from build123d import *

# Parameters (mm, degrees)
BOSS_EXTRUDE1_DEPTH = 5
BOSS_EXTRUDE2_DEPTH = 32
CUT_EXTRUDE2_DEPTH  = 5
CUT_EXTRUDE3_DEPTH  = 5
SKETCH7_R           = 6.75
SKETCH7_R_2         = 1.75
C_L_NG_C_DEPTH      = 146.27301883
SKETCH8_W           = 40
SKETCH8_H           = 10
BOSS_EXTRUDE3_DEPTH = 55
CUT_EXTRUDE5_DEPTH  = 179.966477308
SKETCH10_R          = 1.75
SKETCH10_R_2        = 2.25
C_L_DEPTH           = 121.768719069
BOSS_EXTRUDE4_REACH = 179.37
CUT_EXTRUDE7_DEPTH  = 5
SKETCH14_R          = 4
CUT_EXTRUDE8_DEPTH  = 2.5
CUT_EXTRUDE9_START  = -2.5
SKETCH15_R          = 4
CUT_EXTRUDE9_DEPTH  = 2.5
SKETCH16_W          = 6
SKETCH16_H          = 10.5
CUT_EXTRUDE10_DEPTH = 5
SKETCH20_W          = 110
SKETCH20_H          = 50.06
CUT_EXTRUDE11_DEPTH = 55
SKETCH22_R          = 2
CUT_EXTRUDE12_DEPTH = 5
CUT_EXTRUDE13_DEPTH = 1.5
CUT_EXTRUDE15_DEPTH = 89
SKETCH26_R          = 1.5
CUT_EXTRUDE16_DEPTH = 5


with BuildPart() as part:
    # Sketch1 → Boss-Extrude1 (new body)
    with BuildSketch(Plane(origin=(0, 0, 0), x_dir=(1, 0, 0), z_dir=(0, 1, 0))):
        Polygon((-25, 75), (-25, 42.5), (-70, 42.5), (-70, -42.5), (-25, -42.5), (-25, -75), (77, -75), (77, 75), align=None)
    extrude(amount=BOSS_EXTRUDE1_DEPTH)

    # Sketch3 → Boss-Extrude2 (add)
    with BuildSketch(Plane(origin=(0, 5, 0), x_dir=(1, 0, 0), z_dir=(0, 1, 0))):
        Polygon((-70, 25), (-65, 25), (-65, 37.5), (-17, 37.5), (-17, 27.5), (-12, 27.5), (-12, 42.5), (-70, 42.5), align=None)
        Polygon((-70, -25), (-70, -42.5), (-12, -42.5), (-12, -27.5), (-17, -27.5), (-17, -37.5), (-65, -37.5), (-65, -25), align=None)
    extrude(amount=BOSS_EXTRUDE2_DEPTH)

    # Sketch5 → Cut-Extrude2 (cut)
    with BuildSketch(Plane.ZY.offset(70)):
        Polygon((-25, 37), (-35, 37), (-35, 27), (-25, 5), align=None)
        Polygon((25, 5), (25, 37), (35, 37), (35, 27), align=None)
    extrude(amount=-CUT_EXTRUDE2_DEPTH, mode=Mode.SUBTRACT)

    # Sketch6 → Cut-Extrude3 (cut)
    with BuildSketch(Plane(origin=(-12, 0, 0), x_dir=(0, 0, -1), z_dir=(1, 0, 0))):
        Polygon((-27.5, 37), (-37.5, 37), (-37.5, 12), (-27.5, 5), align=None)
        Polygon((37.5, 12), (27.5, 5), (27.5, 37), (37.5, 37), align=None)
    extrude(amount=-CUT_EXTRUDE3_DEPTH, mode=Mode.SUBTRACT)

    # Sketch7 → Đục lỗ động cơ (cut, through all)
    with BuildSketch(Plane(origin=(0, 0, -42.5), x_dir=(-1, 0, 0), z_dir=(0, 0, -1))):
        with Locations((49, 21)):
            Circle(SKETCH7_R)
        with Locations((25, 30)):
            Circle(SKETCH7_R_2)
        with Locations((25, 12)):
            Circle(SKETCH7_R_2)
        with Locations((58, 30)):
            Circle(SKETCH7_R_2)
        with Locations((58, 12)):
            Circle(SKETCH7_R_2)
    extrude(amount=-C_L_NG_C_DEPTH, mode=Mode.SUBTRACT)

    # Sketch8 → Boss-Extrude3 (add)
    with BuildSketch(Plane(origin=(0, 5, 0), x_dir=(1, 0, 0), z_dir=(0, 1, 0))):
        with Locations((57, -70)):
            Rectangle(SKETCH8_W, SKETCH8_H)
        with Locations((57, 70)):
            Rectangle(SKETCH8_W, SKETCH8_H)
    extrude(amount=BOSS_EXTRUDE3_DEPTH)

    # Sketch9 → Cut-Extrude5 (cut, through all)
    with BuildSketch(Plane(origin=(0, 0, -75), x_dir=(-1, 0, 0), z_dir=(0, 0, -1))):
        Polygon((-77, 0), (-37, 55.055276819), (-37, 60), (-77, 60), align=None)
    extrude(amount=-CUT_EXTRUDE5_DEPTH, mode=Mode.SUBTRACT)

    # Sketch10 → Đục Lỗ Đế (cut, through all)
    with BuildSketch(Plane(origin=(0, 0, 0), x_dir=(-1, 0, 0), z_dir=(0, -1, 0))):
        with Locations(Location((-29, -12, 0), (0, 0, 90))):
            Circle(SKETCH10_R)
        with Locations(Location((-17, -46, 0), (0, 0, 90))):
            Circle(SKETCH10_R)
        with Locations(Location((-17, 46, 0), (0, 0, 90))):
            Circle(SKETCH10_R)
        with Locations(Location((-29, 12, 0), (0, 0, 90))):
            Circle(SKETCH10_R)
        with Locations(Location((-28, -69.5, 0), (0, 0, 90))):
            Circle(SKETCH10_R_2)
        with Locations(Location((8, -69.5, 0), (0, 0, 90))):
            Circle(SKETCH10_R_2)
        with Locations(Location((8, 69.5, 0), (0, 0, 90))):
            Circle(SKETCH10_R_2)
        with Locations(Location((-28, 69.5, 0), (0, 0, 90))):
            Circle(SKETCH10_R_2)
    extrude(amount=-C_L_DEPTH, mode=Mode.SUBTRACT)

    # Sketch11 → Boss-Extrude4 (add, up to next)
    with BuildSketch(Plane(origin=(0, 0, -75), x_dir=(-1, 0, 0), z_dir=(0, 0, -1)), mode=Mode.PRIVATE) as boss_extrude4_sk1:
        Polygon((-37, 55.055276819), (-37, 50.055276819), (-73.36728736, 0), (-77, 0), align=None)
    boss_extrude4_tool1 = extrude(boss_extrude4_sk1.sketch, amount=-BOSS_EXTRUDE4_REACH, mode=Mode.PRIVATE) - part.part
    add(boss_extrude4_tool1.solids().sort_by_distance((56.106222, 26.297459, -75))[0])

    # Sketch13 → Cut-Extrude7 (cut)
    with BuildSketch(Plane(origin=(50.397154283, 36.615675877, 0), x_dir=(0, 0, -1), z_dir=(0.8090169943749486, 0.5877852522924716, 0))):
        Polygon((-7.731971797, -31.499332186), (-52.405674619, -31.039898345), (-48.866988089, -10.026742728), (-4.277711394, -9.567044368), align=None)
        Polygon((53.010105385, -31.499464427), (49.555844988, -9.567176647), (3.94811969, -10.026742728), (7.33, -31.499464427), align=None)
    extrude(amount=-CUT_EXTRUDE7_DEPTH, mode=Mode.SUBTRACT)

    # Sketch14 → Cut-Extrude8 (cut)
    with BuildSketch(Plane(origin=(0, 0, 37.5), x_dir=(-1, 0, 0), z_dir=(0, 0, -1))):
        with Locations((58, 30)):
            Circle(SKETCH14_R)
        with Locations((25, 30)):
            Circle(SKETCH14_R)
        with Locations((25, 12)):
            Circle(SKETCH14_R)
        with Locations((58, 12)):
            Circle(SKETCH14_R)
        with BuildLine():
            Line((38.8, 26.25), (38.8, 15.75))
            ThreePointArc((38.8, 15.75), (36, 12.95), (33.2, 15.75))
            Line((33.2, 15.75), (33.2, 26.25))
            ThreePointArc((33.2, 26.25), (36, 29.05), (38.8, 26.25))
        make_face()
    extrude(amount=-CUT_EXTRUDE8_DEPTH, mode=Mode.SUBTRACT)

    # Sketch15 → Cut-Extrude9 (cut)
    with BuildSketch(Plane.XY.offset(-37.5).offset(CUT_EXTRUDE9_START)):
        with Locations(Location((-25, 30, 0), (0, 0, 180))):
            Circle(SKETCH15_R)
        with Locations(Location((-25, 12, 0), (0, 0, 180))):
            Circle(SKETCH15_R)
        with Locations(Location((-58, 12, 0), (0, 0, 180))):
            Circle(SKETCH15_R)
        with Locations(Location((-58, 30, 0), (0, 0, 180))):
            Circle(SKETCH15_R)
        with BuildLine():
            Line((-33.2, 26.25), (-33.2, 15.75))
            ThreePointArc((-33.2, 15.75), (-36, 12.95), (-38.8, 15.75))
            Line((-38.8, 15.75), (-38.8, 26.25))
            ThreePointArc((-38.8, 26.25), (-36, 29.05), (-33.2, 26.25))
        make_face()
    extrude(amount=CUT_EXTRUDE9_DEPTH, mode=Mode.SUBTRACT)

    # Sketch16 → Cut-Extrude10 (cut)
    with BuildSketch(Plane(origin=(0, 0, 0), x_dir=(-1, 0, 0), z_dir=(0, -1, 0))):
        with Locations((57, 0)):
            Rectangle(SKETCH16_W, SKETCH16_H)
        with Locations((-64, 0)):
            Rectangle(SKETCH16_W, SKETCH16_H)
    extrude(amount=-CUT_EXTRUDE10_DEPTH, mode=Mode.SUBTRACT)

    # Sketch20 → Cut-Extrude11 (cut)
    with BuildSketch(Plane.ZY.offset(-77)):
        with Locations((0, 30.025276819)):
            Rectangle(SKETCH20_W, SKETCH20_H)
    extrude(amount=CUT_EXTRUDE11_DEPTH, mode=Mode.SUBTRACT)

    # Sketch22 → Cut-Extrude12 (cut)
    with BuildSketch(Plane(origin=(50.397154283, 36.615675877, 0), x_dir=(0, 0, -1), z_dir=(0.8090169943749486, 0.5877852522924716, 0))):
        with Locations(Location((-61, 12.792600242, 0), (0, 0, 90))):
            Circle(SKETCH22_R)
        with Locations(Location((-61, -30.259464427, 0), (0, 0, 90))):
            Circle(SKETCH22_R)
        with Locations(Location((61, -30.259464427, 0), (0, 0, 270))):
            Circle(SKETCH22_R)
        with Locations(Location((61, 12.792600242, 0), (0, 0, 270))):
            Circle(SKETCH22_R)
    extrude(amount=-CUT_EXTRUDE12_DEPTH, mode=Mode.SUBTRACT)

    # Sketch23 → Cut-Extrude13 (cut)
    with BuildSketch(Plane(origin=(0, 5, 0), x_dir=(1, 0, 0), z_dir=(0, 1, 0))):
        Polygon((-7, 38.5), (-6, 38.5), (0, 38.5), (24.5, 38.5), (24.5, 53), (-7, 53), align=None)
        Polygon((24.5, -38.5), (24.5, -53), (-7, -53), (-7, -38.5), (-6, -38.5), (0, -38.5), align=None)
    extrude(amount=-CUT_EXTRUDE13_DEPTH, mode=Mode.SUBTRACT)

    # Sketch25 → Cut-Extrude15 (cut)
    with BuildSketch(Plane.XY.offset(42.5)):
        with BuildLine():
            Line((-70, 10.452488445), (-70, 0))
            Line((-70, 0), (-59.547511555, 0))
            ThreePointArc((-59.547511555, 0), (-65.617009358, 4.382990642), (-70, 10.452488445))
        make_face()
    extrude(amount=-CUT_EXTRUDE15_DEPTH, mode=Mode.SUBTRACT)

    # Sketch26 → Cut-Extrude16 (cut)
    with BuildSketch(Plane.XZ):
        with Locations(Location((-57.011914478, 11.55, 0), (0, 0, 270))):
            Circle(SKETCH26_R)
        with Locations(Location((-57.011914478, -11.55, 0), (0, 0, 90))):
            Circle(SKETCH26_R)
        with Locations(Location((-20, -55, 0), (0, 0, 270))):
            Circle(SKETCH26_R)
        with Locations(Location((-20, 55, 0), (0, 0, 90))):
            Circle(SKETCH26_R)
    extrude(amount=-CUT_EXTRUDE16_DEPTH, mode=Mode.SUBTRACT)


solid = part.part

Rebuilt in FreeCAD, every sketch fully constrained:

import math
import FreeCAD as App
import Part
import Sketcher
from FreeCAD import Vector
Q = App.Units.Quantity

doc = App.newDocument("Part")
params = doc.addObject("Spreadsheet::Sheet", "Params")
for row, (alias, value) in enumerate([
    ("sketch1_width", "45 mm"),
    ("sketch1_width2", "102 mm"),
    ("sketch1_height", "85 mm"),
    ("sketch1_height2", "150 mm"),
    ("pad1_length", "5 mm"),
    ("sketch2_width", "5 mm"),
    ("sketch2_width2", "48 mm"),
    ("sketch2_height", "10 mm"),
    ("sketch2_height2", "15 mm"),
    ("sketch2_height3", "12.5 mm"),
    ("pad2_length", "32 mm"),
    ("sketch3_width", "10 mm"),
    ("sketch3_width2", "32 mm"),
    ("pocket1_length", "5 mm"),
    ("sketch4_width", "25 mm"),
    ("sketch4_width2", "32 mm"),
    ("sketch4_height", "10 mm"),
    ("pocket2_length", "5 mm"),
    ("sketch5_diameter", "13.5 mm"),
    ("sketch5_diameter2", "3.5 mm"),
    ("sketch6_width", "40 mm"),
    ("sketch6_height", "10 mm"),
    ("pad3_length", "55 mm"),
    ("sketch7_width", "40 mm"),
    ("sketch7_height", "60 mm"),
    ("sketch8_diameter", "3.5 mm"),
    ("sketch8_diameter2", "4.5 mm"),
    ("sketch9_height", "5 mm"),
    ("pad4_length", "140 mm"),
    ("pocket6_length", "5 mm"),
    ("sketch11_diameter", "8 mm"),
    ("sketch11_radius", "2.8 mm"),
    ("sketch11_height", "10.5 mm"),
    ("pocket7_length", "2.5 mm"),
    ("sketch12_diameter", "8 mm"),
    ("sketch12_radius", "2.8 mm"),
    ("sketch12_height", "10.5 mm"),
    ("pocket8_length", "2.5 mm"),
    ("sketch13_width", "6 mm"),
    ("sketch13_height", "10.5 mm"),
    ("pocket9_length", "5 mm"),
    ("sketch14_height", "110 mm"),
    ("sketch14_width", "50.06 mm"),
    ("pocket10_length", "55 mm"),
    ("sketch15_diameter", "4 mm"),
    ("pocket11_length", "5 mm"),
    ("sketch16_width", "31.5 mm"),
    ("sketch16_height", "14.5 mm"),
    ("pocket12_length", "1.5 mm"),
    ("sketch17_radius", "23.5 mm"),
    ("pocket13_length", "89 mm"),
    ("sketch18_diameter", "3 mm"),
    ("pocket14_length", "5 mm"),
], start=1):
    params.set(f"A{row}", alias)
    params.set(f"B{row}", "=" + value)
    params.setAlias(f"B{row}", alias)

body = doc.addObject("PartDesign::Body", "Body")

sketch1 = body.newObject("Sketcher::SketchObject", "Sketch")
sketch1.AttachmentSupport = (doc.getObject("XZ_Plane"), [""])
sketch1.MapMode = "FlatFace"
sketch1.addGeometry([
    Part.LineSegment(Vector(-25, -75, 0), Vector(-25, -42, 0)),
    Part.LineSegment(Vector(-25, -42, 0), Vector(-70, -42, 0)),
    Part.LineSegment(Vector(-70, -42, 0), Vector(-70, 42, 0)),
    Part.LineSegment(Vector(-70, 42, 0), Vector(-25, 42, 0)),
    Part.LineSegment(Vector(-25, 42, 0), Vector(-25, 75, 0)),
    Part.LineSegment(Vector(-25, 75, 0), Vector(77, 75, 0)),
    Part.LineSegment(Vector(77, 75, 0), Vector(77, -75, 0)),
    Part.LineSegment(Vector(77, -75, 0), Vector(-25, -75, 0)),
], False)
sketch1.addConstraint([
    Sketcher.Constraint("Coincident", 0, 2, 1, 1),
    Sketcher.Constraint("Coincident", 1, 2, 2, 1),
    Sketcher.Constraint("Coincident", 2, 2, 3, 1),
    Sketcher.Constraint("Coincident", 3, 2, 4, 1),
    Sketcher.Constraint("Coincident", 4, 2, 5, 1),
    Sketcher.Constraint("Coincident", 5, 2, 6, 1),
    Sketcher.Constraint("Coincident", 6, 2, 7, 1),
    Sketcher.Constraint("Coincident", 7, 2, 0, 1),
    Sketcher.Constraint("Vertical", 0),
    Sketcher.Constraint("Horizontal", 1),
    Sketcher.Constraint("Vertical", 2),
    Sketcher.Constraint("Horizontal", 3),
    Sketcher.Constraint("Vertical", 4),
    Sketcher.Constraint("Horizontal", 5),
    Sketcher.Constraint("Vertical", 6),
    Sketcher.Constraint("Horizontal", 7),
    Sketcher.Constraint("Symmetric", 0, 2, 3, 2, -1),
    Sketcher.Constraint("Equal", 0, 4),
    Sketcher.Constraint("DistanceX", 1, 2, 1, 1, Q("45 mm")),
    Sketcher.Constraint("DistanceX", 5, 1, 5, 2, Q("102 mm")),
    Sketcher.Constraint("DistanceY", 2, 1, 2, 2, Q("85 mm")),
    Sketcher.Constraint("DistanceY", 6, 2, 6, 1, Q("150 mm")),
    Sketcher.Constraint("DistanceX", 0, 2, -1, 1, Q("25 mm")),
])
sketch1.setExpression("Constraints[18]", "Params.sketch1_width")
sketch1.setExpression("Constraints[19]", "Params.sketch1_width2")
sketch1.setExpression("Constraints[20]", "Params.sketch1_height")
sketch1.setExpression("Constraints[21]", "Params.sketch1_height2")
pad1 = body.newObject("PartDesign::Pad", "Pad")
pad1.Profile = sketch1
pad1.setExpression("Length", "Params.pad1_length")
pad1.Reversed = True

sketch2 = body.newObject("Sketcher::SketchObject", "Sketch001")
sketch2.AttachmentSupport = (doc.getObject("XZ_Plane"), [""])
sketch2.MapMode = "FlatFace"
sketch2.AttachmentOffset = App.Placement(Vector(0, 0, -5), App.Rotation())
sketch2.addGeometry([
    Part.LineSegment(Vector(-70, -25, 0), Vector(-65, -25, 0)),
    Part.LineSegment(Vector(-65, -25, 0), Vector(-65, -38, 0)),
    Part.LineSegment(Vector(-65, -38, 0), Vector(-17, -38, 0)),
    Part.LineSegment(Vector(-17, -38, 0), Vector(-17, -28, 0)),
    Part.LineSegment(Vector(-17, -28, 0), Vector(-12, -28, 0)),
    Part.LineSegment(Vector(-12, -28, 0), Vector(-12, -42, 0)),
    Part.LineSegment(Vector(-12, -42, 0), Vector(-70, -42, 0)),
    Part.LineSegment(Vector(-70, -42, 0), Vector(-70, -25, 0)),
    Part.LineSegment(Vector(-70, 25, 0), Vector(-70, 42, 0)),
    Part.LineSegment(Vector(-70, 42, 0), Vector(-12, 42, 0)),
    Part.LineSegment(Vector(-12, 42, 0), Vector(-12, 28, 0)),
    Part.LineSegment(Vector(-12, 28, 0), Vector(-17, 28, 0)),
    Part.LineSegment(Vector(-17, 28, 0), Vector(-17, 38, 0)),
    Part.LineSegment(Vector(-17, 38, 0), Vector(-65, 38, 0)),
    Part.LineSegment(Vector(-65, 38, 0), Vector(-65, 25, 0)),
    Part.LineSegment(Vector(-65, 25, 0), Vector(-70, 25, 0)),
], False)
sketch2.addConstraint([
    Sketcher.Constraint("Coincident", 0, 2, 1, 1),
    Sketcher.Constraint("Coincident", 1, 2, 2, 1),
    Sketcher.Constraint("Coincident", 2, 2, 3, 1),
    Sketcher.Constraint("Coincident", 3, 2, 4, 1),
    Sketcher.Constraint("Coincident", 4, 2, 5, 1),
    Sketcher.Constraint("Coincident", 5, 2, 6, 1),
    Sketcher.Constraint("Coincident", 6, 2, 7, 1),
    Sketcher.Constraint("Coincident", 7, 2, 0, 1),
    Sketcher.Constraint("Coincident", 8, 2, 9, 1),
    Sketcher.Constraint("Coincident", 9, 2, 10, 1),
    Sketcher.Constraint("Coincident", 10, 2, 11, 1),
    Sketcher.Constraint("Coincident", 11, 2, 12, 1),
    Sketcher.Constraint("Coincident", 12, 2, 13, 1),
    Sketcher.Constraint("Coincident", 13, 2, 14, 1),
    Sketcher.Constraint("Coincident", 14, 2, 15, 1),
    Sketcher.Constraint("Coincident", 15, 2, 8, 1),
    Sketcher.Constraint("Horizontal", 0),
    Sketcher.Constraint("Vertical", 1),
    Sketcher.Constraint("Horizontal", 2),
    Sketcher.Constraint("Vertical", 3),
    Sketcher.Constraint("Horizontal", 4),
    Sketcher.Constraint("Vertical", 5),
    Sketcher.Constraint("Horizontal", 6),
    Sketcher.Constraint("Vertical", 7),
    Sketcher.Constraint("Vertical", 8),
    Sketcher.Constraint("Horizontal", 9),
    Sketcher.Constraint("Vertical", 10),
    Sketcher.Constraint("Horizontal", 11),
    Sketcher.Constraint("Vertical", 12),
    Sketcher.Constraint("Horizontal", 13),
    Sketcher.Constraint("Vertical", 14),
    Sketcher.Constraint("Horizontal", 15),
    Sketcher.Constraint("Symmetric", 6, 2, 8, 2, -1),
    Sketcher.Constraint("Symmetric", 4, 2, 10, 2, -1),
    Sketcher.Constraint("Symmetric", 2, 2, 12, 2, -1),
    Sketcher.Constraint("Symmetric", 0, 2, 14, 2, -1),
    Sketcher.Constraint("Equal", 0, 4),
    Sketcher.Constraint("DistanceX", 0, 1, 0, 2, Q("5 mm")),
    Sketcher.Constraint("DistanceX", 2, 1, 2, 2, Q("48 mm")),
    Sketcher.Constraint("DistanceY", 3, 1, 3, 2, Q("10 mm")),
    Sketcher.Constraint("DistanceY", 5, 2, 5, 1, Q("15 mm")),
    Sketcher.Constraint("DistanceY", 1, 2, 1, 1, Q("12.5 mm")),
    Sketcher.Constraint("DistanceX", 0, 2, -1, 1, Q("65 mm")),
    Sketcher.Constraint("DistanceY", 0, 2, -1, 1, Q("25 mm")),
])
sketch2.setExpression("Constraints[37]", "Params.sketch2_width")
sketch2.setExpression("Constraints[38]", "Params.sketch2_width2")
sketch2.setExpression("Constraints[39]", "Params.sketch2_height")
sketch2.setExpression("Constraints[40]", "Params.sketch2_height2")
sketch2.setExpression("Constraints[41]", "Params.sketch2_height3")
pad2 = body.newObject("PartDesign::Pad", "Pad001")
pad2.Profile = sketch2
pad2.setExpression("Length", "Params.pad2_length")
pad2.Reversed = True

sketch3 = body.newObject("Sketcher::SketchObject", "Sketch002")
sketch3.AttachmentSupport = (doc.getObject("YZ_Plane"), [""])
sketch3.MapMode = "FlatFace"
sketch3.AttachmentOffset = App.Placement(Vector(0, 0, -70), App.Rotation())
sketch3.addGeometry([
    Part.LineSegment(Vector(37, -25, 0), Vector(37, -35, 0)),
    Part.LineSegment(Vector(37, -35, 0), Vector(27, -35, 0)),
    Part.LineSegment(Vector(27, -35, 0), Vector(5, -25, 0)),
    Part.LineSegment(Vector(5, -25, 0), Vector(37, -25, 0)),
    Part.LineSegment(Vector(37, 25, 0), Vector(5, 25, 0)),
    Part.LineSegment(Vector(5, 25, 0), Vector(27, 35, 0)),
    Part.LineSegment(Vector(27, 35, 0), Vector(37, 35, 0)),
    Part.LineSegment(Vector(37, 35, 0), Vector(37, 25, 0)),
], False)
sketch3.addConstraint([
    Sketcher.Constraint("Coincident", 0, 2, 1, 1),
    Sketcher.Constraint("Coincident", 1, 2, 2, 1),
    Sketcher.Constraint("Coincident", 2, 2, 3, 1),
    Sketcher.Constraint("Coincident", 3, 2, 0, 1),
    Sketcher.Constraint("Coincident", 4, 2, 5, 1),
    Sketcher.Constraint("Coincident", 5, 2, 6, 1),
    Sketcher.Constraint("Coincident", 6, 2, 7, 1),
    Sketcher.Constraint("Coincident", 7, 2, 4, 1),
    Sketcher.Constraint("Vertical", 0),
    Sketcher.Constraint("Horizontal", 1),
    Sketcher.Constraint("Horizontal", 3),
    Sketcher.Constraint("Horizontal", 4),
    Sketcher.Constraint("Horizontal", 6),
    Sketcher.Constraint("Vertical", 7),
    Sketcher.Constraint("Symmetric", 2, 2, 4, 2, -1),
    Sketcher.Constraint("Symmetric", 1, 2, 5, 2, -1),
    Sketcher.Constraint("Vertical", 3, 2, 6, 2),
    Sketcher.Constraint("Equal", 6, 0),
    Sketcher.Constraint("DistanceX", 1, 2, 1, 1, Q("10 mm")),
    Sketcher.Constraint("DistanceX", 3, 1, 3, 2, Q("32 mm")),
    Sketcher.Constraint("DistanceX", -1, 1, 0, 2, Q("37 mm")),
    Sketcher.Constraint("DistanceY", 0, 2, -1, 1, Q("35 mm")),
])
sketch3.setExpression("Constraints[18]", "Params.sketch3_width")
sketch3.setExpression("Constraints[19]", "Params.sketch3_width2")
pocket1 = body.newObject("PartDesign::Pocket", "Pocket")
pocket1.Profile = sketch3
pocket1.setExpression("Length", "Params.pocket1_length")
pocket1.Reversed = True

sketch4 = body.newObject("Sketcher::SketchObject", "Sketch003")
sketch4.AttachmentSupport = (doc.getObject("YZ_Plane"), [""])
sketch4.MapMode = "FlatFace"
sketch4.AttachmentOffset = App.Placement(Vector(0, 0, -12), App.Rotation())
sketch4.addGeometry([
    Part.LineSegment(Vector(37, 28, 0), Vector(37, 38, 0)),
    Part.LineSegment(Vector(37, 38, 0), Vector(12, 38, 0)),
    Part.LineSegment(Vector(12, 38, 0), Vector(5, 28, 0)),
    Part.LineSegment(Vector(5, 28, 0), Vector(37, 28, 0)),
    Part.LineSegment(Vector(5, -28, 0), Vector(12, -38, 0)),
    Part.LineSegment(Vector(12, -38, 0), Vector(37, -38, 0)),
    Part.LineSegment(Vector(37, -38, 0), Vector(37, -28, 0)),
    Part.LineSegment(Vector(37, -28, 0), Vector(5, -28, 0)),
], False)
sketch4.addConstraint([
    Sketcher.Constraint("Coincident", 0, 2, 1, 1),
    Sketcher.Constraint("Coincident", 1, 2, 2, 1),
    Sketcher.Constraint("Coincident", 2, 2, 3, 1),
    Sketcher.Constraint("Coincident", 3, 2, 0, 1),
    Sketcher.Constraint("Coincident", 4, 2, 5, 1),
    Sketcher.Constraint("Coincident", 5, 2, 6, 1),
    Sketcher.Constraint("Coincident", 6, 2, 7, 1),
    Sketcher.Constraint("Coincident", 7, 2, 4, 1),
    Sketcher.Constraint("Vertical", 0),
    Sketcher.Constraint("Horizontal", 1),
    Sketcher.Constraint("Horizontal", 3),
    Sketcher.Constraint("Horizontal", 5),
    Sketcher.Constraint("Vertical", 6),
    Sketcher.Constraint("Horizontal", 7),
    Sketcher.Constraint("Symmetric", 1, 2, 4, 2, -1),
    Sketcher.Constraint("Symmetric", 3, 2, 6, 2, -1),
    Sketcher.Constraint("Vertical", 2, 2, 7, 2),
    Sketcher.Constraint("DistanceX", 1, 2, 1, 1, Q("25 mm")),
    Sketcher.Constraint("DistanceX", 3, 1, 3, 2, Q("32 mm")),
    Sketcher.Constraint("DistanceY", 0, 1, 0, 2, Q("10 mm")),
    Sketcher.Constraint("DistanceX", -1, 1, 0, 2, Q("37 mm")),
    Sketcher.Constraint("DistanceY", 4, 2, 2, 2, Q("65 mm")),
])
sketch4.setExpression("Constraints[17]", "Params.sketch4_width")
sketch4.setExpression("Constraints[18]", "Params.sketch4_width2")
sketch4.setExpression("Constraints[19]", "Params.sketch4_height")
pocket2 = body.newObject("PartDesign::Pocket", "Pocket001")
pocket2.Profile = sketch4
pocket2.setExpression("Length", "Params.pocket2_length")

sketch5 = body.newObject("Sketcher::SketchObject", "Sketch004")
sketch5.AttachmentSupport = (doc.getObject("XY_Plane"), [""])
sketch5.MapMode = "FlatFace"
sketch5.AttachmentOffset = App.Placement(Vector(0, 0, -42.5), App.Rotation())
sketch5.addGeometry([
    Part.Circle(Vector(-49, 21, 0), Vector(0, 0, 1), 6.8),
    Part.Circle(Vector(-25, 30, 0), Vector(0, 0, 1), 1.8),
    Part.Circle(Vector(-25, 12, 0), Vector(0, 0, 1), 1.8),
    Part.Circle(Vector(-58, 30, 0), Vector(0, 0, 1), 1.8),
    Part.Circle(Vector(-58, 12, 0), Vector(0, 0, 1), 1.8),
], False)
sketch5.addConstraint([
    Sketcher.Constraint("Equal", 1, 2),
    Sketcher.Constraint("Equal", 2, 3),
    Sketcher.Constraint("Equal", 3, 4),
    Sketcher.Constraint("Horizontal", 1, 3, 3, 3),
    Sketcher.Constraint("Horizontal", 2, 3, 4, 3),
    Sketcher.Constraint("Vertical", 1, 3, 2, 3),
    Sketcher.Constraint("Vertical", 3, 3, 4, 3),
    Sketcher.Constraint("Diameter", 0, Q("13.5 mm")),
    Sketcher.Constraint("Diameter", 1, Q("3.5 mm")),
    Sketcher.Constraint("DistanceX", 0, 3, -1, 1, Q("49 mm")),
    Sketcher.Constraint("DistanceY", -1, 1, 0, 3, Q("21 mm")),
    Sketcher.Constraint("DistanceX", 1, 3, -1, 1, Q("25 mm")),
    Sketcher.Constraint("DistanceY", -1, 1, 1, 3, Q("30 mm")),
    Sketcher.Constraint("DistanceY", -1, 1, 2, 3, Q("12 mm")),
    Sketcher.Constraint("DistanceX", 3, 3, -1, 1, Q("58 mm")),
])
sketch5.setExpression("Constraints[7]", "Params.sketch5_diameter")
sketch5.setExpression("Constraints[8]", "Params.sketch5_diameter2")
pocket3 = body.newObject("PartDesign::Pocket", "Pocket002")
pocket3.Profile = sketch5
pocket3.Type = "ThroughAll"
pocket3.Reversed = True

sketch6 = body.newObject("Sketcher::SketchObject", "Sketch005")
sketch6.AttachmentSupport = (doc.getObject("XZ_Plane"), [""])
sketch6.MapMode = "FlatFace"
sketch6.AttachmentOffset = App.Placement(Vector(0, 0, -5), App.Rotation())
sketch6.addGeometry([
    Part.LineSegment(Vector(37, 65, 0), Vector(37, 75, 0)),
    Part.LineSegment(Vector(37, 75, 0), Vector(77, 75, 0)),
    Part.LineSegment(Vector(77, 75, 0), Vector(77, 65, 0)),
    Part.LineSegment(Vector(77, 65, 0), Vector(37, 65, 0)),
    Part.LineSegment(Vector(37, -75, 0), Vector(37, -65, 0)),
    Part.LineSegment(Vector(37, -65, 0), Vector(77, -65, 0)),
    Part.LineSegment(Vector(77, -65, 0), Vector(77, -75, 0)),
    Part.LineSegment(Vector(77, -75, 0), Vector(37, -75, 0)),
], False)
sketch6.addConstraint([
    Sketcher.Constraint("Coincident", 0, 2, 1, 1),
    Sketcher.Constraint("Coincident", 1, 2, 2, 1),
    Sketcher.Constraint("Coincident", 2, 2, 3, 1),
    Sketcher.Constraint("Coincident", 3, 2, 0, 1),
    Sketcher.Constraint("Coincident", 4, 2, 5, 1),
    Sketcher.Constraint("Coincident", 5, 2, 6, 1),
    Sketcher.Constraint("Coincident", 6, 2, 7, 1),
    Sketcher.Constraint("Coincident", 7, 2, 4, 1),
    Sketcher.Constraint("Vertical", 0),
    Sketcher.Constraint("Horizontal", 1),
    Sketcher.Constraint("Vertical", 2),
    Sketcher.Constraint("Horizontal", 3),
    Sketcher.Constraint("Vertical", 4),
    Sketcher.Constraint("Horizontal", 5),
    Sketcher.Constraint("Vertical", 6),
    Sketcher.Constraint("Horizontal", 7),
    Sketcher.Constraint("Symmetric", 3, 2, 4, 2, -1),
    Sketcher.Constraint("Symmetric", 1, 2, 6, 2, -1),
    Sketcher.Constraint("DistanceX", 1, 1, 1, 2, Q("40 mm")),
    Sketcher.Constraint("DistanceY", 0, 1, 0, 2, Q("10 mm")),
    Sketcher.Constraint("DistanceX", -1, 1, 0, 2, Q("37 mm")),
    Sketcher.Constraint("DistanceY", -1, 1, 0, 2, Q("75 mm")),
])
sketch6.setExpression("Constraints[18]", "Params.sketch6_width")
sketch6.setExpression("Constraints[19]", "Params.sketch6_height")
pad3 = body.newObject("PartDesign::Pad", "Pad002")
pad3.Profile = sketch6
pad3.setExpression("Length", "Params.pad3_length")
pad3.Reversed = True

sketch7 = body.newObject("Sketcher::SketchObject", "Sketch006")
sketch7.AttachmentSupport = (doc.getObject("XY_Plane"), [""])
sketch7.MapMode = "FlatFace"
sketch7.AttachmentOffset = App.Placement(Vector(0, 0, -75), App.Rotation())
sketch7.addGeometry([
    Part.LineSegment(Vector(77, 0, 0), Vector(37, 55.1, 0)),
    Part.LineSegment(Vector(37, 55.1, 0), Vector(37, 60, 0)),
    Part.LineSegment(Vector(37, 60, 0), Vector(77, 60, 0)),
    Part.LineSegment(Vector(77, 60, 0), Vector(77, 0, 0)),
], False)
sketch7.addConstraint([
    Sketcher.Constraint("Coincident", 0, 2, 1, 1),
    Sketcher.Constraint("Coincident", 1, 2, 2, 1),
    Sketcher.Constraint("Coincident", 2, 2, 3, 1),
    Sketcher.Constraint("Coincident", 3, 2, 0, 1),
    Sketcher.Constraint("Vertical", 1),
    Sketcher.Constraint("Horizontal", 2),
    Sketcher.Constraint("Vertical", 3),
    Sketcher.Constraint("PointOnObject", 3, 2, -1),
    Sketcher.Constraint("DistanceX", 2, 1, 2, 2, Q("40 mm")),
    Sketcher.Constraint("DistanceY", 3, 2, 3, 1, Q("60 mm")),
    Sketcher.Constraint("Angle", 0, Q("126 deg")),
    Sketcher.Constraint("DistanceX", -1, 1, 0, 2, Q("37 mm")),
])
sketch7.setExpression("Constraints[8]", "Params.sketch7_width")
sketch7.setExpression("Constraints[9]", "Params.sketch7_height")
pocket4 = body.newObject("PartDesign::Pocket", "Pocket003")
pocket4.Profile = sketch7
pocket4.Type = "ThroughAll"
pocket4.Reversed = True

sketch8 = body.newObject("Sketcher::SketchObject", "Sketch007")
sketch8.AttachmentSupport = (doc.getObject("XZ_Plane"), [""])
sketch8.MapMode = "FlatFace"
sketch8.addGeometry([
    Part.Circle(Vector(29, 12, 0), Vector(0, 0, 1), 1.8),
    Part.Circle(Vector(17, 46, 0), Vector(0, 0, 1), 1.8),
    Part.Circle(Vector(17, -46, 0), Vector(0, 0, 1), 1.8),
    Part.Circle(Vector(29, -12, 0), Vector(0, 0, 1), 1.8),
    Part.Circle(Vector(28, 69.5, 0), Vector(0, 0, 1), 2.2),
    Part.Circle(Vector(-8, 69.5, 0), Vector(0, 0, 1), 2.2),
    Part.Circle(Vector(-8, -69.5, 0), Vector(0, 0, 1), 2.2),
    Part.Circle(Vector(28, -69.5, 0), Vector(0, 0, 1), 2.2),
], False)
sketch8.addConstraint([
    Sketcher.Constraint("Equal", 0, 1),
    Sketcher.Constraint("Equal", 1, 2),
    Sketcher.Constraint("Equal", 2, 3),
    Sketcher.Constraint("Equal", 4, 5),
    Sketcher.Constraint("Equal", 5, 6),
    Sketcher.Constraint("Equal", 6, 7),
    Sketcher.Constraint("Symmetric", 1, 3, 2, 3, -1),
    Sketcher.Constraint("Symmetric", 0, 3, 3, 3, -1),
    Sketcher.Constraint("Symmetric", 5, 3, 6, 3, -1),
    Sketcher.Constraint("Symmetric", 4, 3, 7, 3, -1),
    Sketcher.Constraint("Horizontal", 4, 3, 5, 3),
    Sketcher.Constraint("Diameter", 0, Q("3.5 mm")),
    Sketcher.Constraint("Diameter", 4, Q("4.5 mm")),
    Sketcher.Constraint("DistanceX", -1, 1, 0, 3, Q("29 mm")),
    Sketcher.Constraint("DistanceY", -1, 1, 0, 3, Q("12 mm")),
    Sketcher.Constraint("DistanceX", -1, 1, 1, 3, Q("17 mm")),
    Sketcher.Constraint("DistanceY", -1, 1, 1, 3, Q("46 mm")),
    Sketcher.Constraint("DistanceX", -1, 1, 4, 3, Q("28 mm")),
    Sketcher.Constraint("DistanceX", 5, 3, -1, 1, Q("8 mm")),
    Sketcher.Constraint("DistanceY", 6, 3, 5, 3, Q("139 mm")),
])
sketch8.setExpression("Constraints[11]", "Params.sketch8_diameter")
sketch8.setExpression("Constraints[12]", "Params.sketch8_diameter2")
pocket5 = body.newObject("PartDesign::Pocket", "Pocket004")
pocket5.Profile = sketch8
pocket5.Type = "ThroughAll"

sketch9 = body.newObject("Sketcher::SketchObject", "Sketch008")
sketch9.AttachmentSupport = (doc.getObject("XY_Plane"), [""])
sketch9.MapMode = "FlatFace"
sketch9.AttachmentOffset = App.Placement(Vector(0, 0, -75), App.Rotation())
sketch9.addGeometry([
    Part.LineSegment(Vector(37, 50.1, 0), Vector(37, 55.1, 0)),
    Part.LineSegment(Vector(37, 55.1, 0), Vector(77, 0, 0)),
    Part.LineSegment(Vector(77, 0, 0), Vector(73.4, 0, 0)),
    Part.LineSegment(Vector(73.4, 0, 0), Vector(37, 50.1, 0)),
], False)
sketch9.addConstraint([
    Sketcher.Constraint("Coincident", 0, 2, 1, 1),
    Sketcher.Constraint("Coincident", 1, 2, 2, 1),
    Sketcher.Constraint("Coincident", 2, 2, 3, 1),
    Sketcher.Constraint("Coincident", 3, 2, 0, 1),
    Sketcher.Constraint("Vertical", 0),
    Sketcher.Constraint("Horizontal", 2),
    Sketcher.Constraint("PointOnObject", 1, 2, -1),
    Sketcher.Constraint("Parallel", 1, 3),
    Sketcher.Constraint("DistanceY", 0, 1, 0, 2, Q("5 mm")),
    Sketcher.Constraint("Angle", 1, Q("-54 deg")),
    Sketcher.Constraint("DistanceX", -1, 1, 0, 2, Q("37 mm")),
    Sketcher.Constraint("DistanceX", -1, 1, 1, 2, Q("77 mm")),
])
sketch9.setExpression("Constraints[8]", "Params.sketch9_height")
pad4 = body.newObject("PartDesign::Pad", "Pad003")
pad4.Profile = sketch9
pad4.setExpression("Length", "Params.pad4_length")

sketch10 = body.newObject("Sketcher::SketchObject", "Sketch009")
sketch10.Placement = App.Placement(Vector(50.397154, 36.615676, 0), App.Rotation(Vector(0, 0, -1), Vector(-0.587785252, 0.809016994, 0), Vector(0.809016994, 0.587785252, 0), "ZXY"))
sketch10.addGeometry([
    Part.LineSegment(Vector(-52, -31, 0), Vector(-8, -31, 0)),
    Part.LineSegment(Vector(-8, -31, 0), Vector(-4, -10, 0)),
    Part.LineSegment(Vector(-4, -10, 0), Vector(-49, -10, 0)),
    Part.LineSegment(Vector(-49, -10, 0), Vector(-52, -31, 0)),
    Part.LineSegment(Vector(53, -31, 0), Vector(50, -10, 0)),
    Part.LineSegment(Vector(50, -10, 0), Vector(4, -10, 0)),
    Part.LineSegment(Vector(4, -10, 0), Vector(7, -31, 0)),
    Part.LineSegment(Vector(7, -31, 0), Vector(53, -31, 0)),
], False)
sketch10.addConstraint([
    Sketcher.Constraint("Coincident", 0, 2, 1, 1),
    Sketcher.Constraint("Coincident", 1, 2, 2, 1),
    Sketcher.Constraint("Coincident", 2, 2, 3, 1),
    Sketcher.Constraint("Coincident", 3, 2, 0, 1),
    Sketcher.Constraint("Coincident", 4, 2, 5, 1),
    Sketcher.Constraint("Coincident", 5, 2, 6, 1),
    Sketcher.Constraint("Coincident", 6, 2, 7, 1),
    Sketcher.Constraint("Coincident", 7, 2, 4, 1),
    Sketcher.Constraint("Horizontal", 7),
    Sketcher.Constraint("Parallel", 4, 6),
    Sketcher.Constraint("Horizontal", 2, 2, 5, 2),
    Sketcher.Constraint("Equal", 1, 4),
    Sketcher.Constraint("DistanceX", -1, 1, 6, 2, Q("7.33 mm")),
    Sketcher.Constraint("DistanceY", 3, 2, -1, 1, Q("31.039898 mm")),
    Sketcher.Constraint("DistanceY", 2, 2, 1, 2, Q("0.459698 mm")),
    Sketcher.Constraint("Distance", 1, Q("22.202639 mm")),
    Sketcher.Constraint("Distance", 5, Q("45.610041 mm")),
    Sketcher.Constraint("DistanceX", 7, 1, 7, 2, Q("45.680105 mm")),
    Sketcher.Constraint("DistanceX", 0, 2, -1, 1, Q("7.731972 mm")),
    Sketcher.Constraint("DistanceX", 1, 2, -1, 1, Q("4.277711 mm")),
    Sketcher.Constraint("DistanceX", 2, 2, -1, 1, Q("48.866988 mm")),
    Sketcher.Constraint("DistanceX", -1, 1, 5, 2, Q("3.94812 mm")),
    Sketcher.Constraint("DistanceX", 3, 2, 4, 2, Q("101.96152 mm")),
    Sketcher.Constraint("DistanceY", 3, 2, 4, 2, Q("21.472722 mm")),
])
pocket6 = body.newObject("PartDesign::Pocket", "Pocket005")
pocket6.Profile = sketch10
pocket6.setExpression("Length", "Params.pocket6_length")

sketch11 = body.newObject("Sketcher::SketchObject", "Sketch010")
sketch11.AttachmentSupport = (doc.getObject("XY_Plane"), [""])
sketch11.MapMode = "FlatFace"
sketch11.AttachmentOffset = App.Placement(Vector(0, 0, 37.5), App.Rotation())
sketch11.addGeometry([
    Part.Circle(Vector(-58, 30, 0), Vector(0, 0, 1), 4),
    Part.Circle(Vector(-25, 30, 0), Vector(0, 0, 1), 4),
    Part.Circle(Vector(-25, 12, 0), Vector(0, 0, 1), 4),
    Part.Circle(Vector(-58, 12, 0), Vector(0, 0, 1), 4),
    Part.LineSegment(Vector(-38.8, 15.8, 0), Vector(-38.8, 26.2, 0)),
    Part.ArcOfCircle(Part.Circle(Vector(-36, 26.2, 0), Vector(0, 0, 1), 2.8), math.radians(0), math.radians(180)),
    Part.LineSegment(Vector(-33.2, 26.2, 0), Vector(-33.2, 15.8, 0)),
    Part.ArcOfCircle(Part.Circle(Vector(-36, 15.8, 0), Vector(0, 0, 1), 2.8), math.radians(180), math.radians(360)),
], False)
sketch11.addConstraint([
    Sketcher.Constraint("Tangent", 4, 2, 5, 2),
    Sketcher.Constraint("Tangent", 5, 1, 6, 1),
    Sketcher.Constraint("Tangent", 6, 2, 7, 2),
    Sketcher.Constraint("Tangent", 7, 1, 4, 1),
    Sketcher.Constraint("Vertical", 4),
    Sketcher.Constraint("Vertical", 6),
    Sketcher.Constraint("Equal", 0, 1),
    Sketcher.Constraint("Equal", 1, 2),
    Sketcher.Constraint("Equal", 2, 3),
    Sketcher.Constraint("Horizontal", 0, 3, 1, 3),
    Sketcher.Constraint("Horizontal", 2, 3, 3, 3),
    Sketcher.Constraint("Vertical", 1, 3, 2, 3),
    Sketcher.Constraint("Vertical", 0, 3, 3, 3),
    Sketcher.Constraint("Diameter", 0, Q("8 mm")),
    Sketcher.Constraint("Radius", 5, Q("2.8 mm")),
    Sketcher.Constraint("DistanceY", 4, 1, 4, 2, Q("10.5 mm")),
    Sketcher.Constraint("DistanceX", 0, 3, -1, 1, Q("58 mm")),
    Sketcher.Constraint("DistanceY", -1, 1, 0, 3, Q("30 mm")),
    Sketcher.Constraint("DistanceX", 1, 3, -1, 1, Q("25 mm")),
    Sketcher.Constraint("DistanceY", -1, 1, 2, 3, Q("12 mm")),
    Sketcher.Constraint("DistanceX", 5, 3, -1, 1, Q("36 mm")),
    Sketcher.Constraint("DistanceY", -1, 1, 5, 3, Q("26.25 mm")),
])
sketch11.setExpression("Constraints[13]", "Params.sketch11_diameter")
sketch11.setExpression("Constraints[14]", "Params.sketch11_radius")
sketch11.setExpression("Constraints[15]", "Params.sketch11_height")
pocket7 = body.newObject("PartDesign::Pocket", "Pocket006")
pocket7.Profile = sketch11
pocket7.setExpression("Length", "Params.pocket7_length")
pocket7.Reversed = True

sketch12 = body.newObject("Sketcher::SketchObject", "Sketch011")
sketch12.AttachmentSupport = (doc.getObject("XY_Plane"), [""])
sketch12.MapMode = "FlatFace"
sketch12.AttachmentOffset = App.Placement(Vector(0, 0, -40), App.Rotation())
sketch12.addGeometry([
    Part.Circle(Vector(-25, 30, 0), Vector(0, 0, 1), 4),
    Part.Circle(Vector(-25, 12, 0), Vector(0, 0, 1), 4),
    Part.Circle(Vector(-58, 12, 0), Vector(0, 0, 1), 4),
    Part.Circle(Vector(-58, 30, 0), Vector(0, 0, 1), 4),
    Part.LineSegment(Vector(-33.2, 15.8, 0), Vector(-33.2, 26.2, 0)),
    Part.ArcOfCircle(Part.Circle(Vector(-36, 26.2, 0), Vector(0, 0, 1), 2.8), math.radians(0), math.radians(180)),
    Part.LineSegment(Vector(-38.8, 26.2, 0), Vector(-38.8, 15.8, 0)),
    Part.ArcOfCircle(Part.Circle(Vector(-36, 15.8, 0), Vector(0, 0, 1), 2.8), math.radians(180), math.radians(360)),
], False)
sketch12.addConstraint([
    Sketcher.Constraint("Tangent", 4, 2, 5, 1),
    Sketcher.Constraint("Tangent", 5, 2, 6, 1),
    Sketcher.Constraint("Tangent", 6, 2, 7, 1),
    Sketcher.Constraint("Tangent", 7, 2, 4, 1),
    Sketcher.Constraint("Vertical", 4),
    Sketcher.Constraint("Vertical", 6),
    Sketcher.Constraint("Equal", 0, 1),
    Sketcher.Constraint("Equal", 1, 2),
    Sketcher.Constraint("Equal", 2, 3),
    Sketcher.Constraint("Horizontal", 1, 3, 2, 3),
    Sketcher.Constraint("Horizontal", 0, 3, 3, 3),
    Sketcher.Constraint("Vertical", 0, 3, 1, 3),
    Sketcher.Constraint("Vertical", 2, 3, 3, 3),
    Sketcher.Constraint("Diameter", 0, Q("8 mm")),
    Sketcher.Constraint("Radius", 5, Q("2.8 mm")),
    Sketcher.Constraint("DistanceY", 4, 1, 4, 2, Q("10.5 mm")),
    Sketcher.Constraint("DistanceX", 0, 3, -1, 1, Q("25 mm")),
    Sketcher.Constraint("DistanceY", -1, 1, 0, 3, Q("30 mm")),
    Sketcher.Constraint("DistanceY", -1, 1, 1, 3, Q("12 mm")),
    Sketcher.Constraint("DistanceX", 2, 3, -1, 1, Q("58 mm")),
    Sketcher.Constraint("DistanceX", 5, 3, -1, 1, Q("36 mm")),
    Sketcher.Constraint("DistanceY", -1, 1, 5, 3, Q("26.25 mm")),
])
sketch12.setExpression("Constraints[13]", "Params.sketch12_diameter")
sketch12.setExpression("Constraints[14]", "Params.sketch12_radius")
sketch12.setExpression("Constraints[15]", "Params.sketch12_height")
pocket8 = body.newObject("PartDesign::Pocket", "Pocket007")
pocket8.Profile = sketch12
pocket8.setExpression("Length", "Params.pocket8_length")
pocket8.Reversed = True

sketch13 = body.newObject("Sketcher::SketchObject", "Sketch012")
sketch13.AttachmentSupport = (doc.getObject("XZ_Plane"), [""])
sketch13.MapMode = "FlatFace"
sketch13.addGeometry([
    Part.LineSegment(Vector(-54, -5, 0), Vector(-54, 5, 0)),
    Part.LineSegment(Vector(-54, 5, 0), Vector(-60, 5, 0)),
    Part.LineSegment(Vector(-60, 5, 0), Vector(-60, -5, 0)),
    Part.LineSegment(Vector(-60, -5, 0), Vector(-54, -5, 0)),
    Part.LineSegment(Vector(67, -5, 0), Vector(67, 5, 0)),
    Part.LineSegment(Vector(67, 5, 0), Vector(61, 5, 0)),
    Part.LineSegment(Vector(61, 5, 0), Vector(61, -5, 0)),
    Part.LineSegment(Vector(61, -5, 0), Vector(67, -5, 0)),
], False)
sketch13.addConstraint([
    Sketcher.Constraint("Coincident", 0, 2, 1, 1),
    Sketcher.Constraint("Coincident", 1, 2, 2, 1),
    Sketcher.Constraint("Coincident", 2, 2, 3, 1),
    Sketcher.Constraint("Coincident", 3, 2, 0, 1),
    Sketcher.Constraint("Coincident", 4, 2, 5, 1),
    Sketcher.Constraint("Coincident", 5, 2, 6, 1),
    Sketcher.Constraint("Coincident", 6, 2, 7, 1),
    Sketcher.Constraint("Coincident", 7, 2, 4, 1),
    Sketcher.Constraint("Vertical", 0),
    Sketcher.Constraint("Horizontal", 1),
    Sketcher.Constraint("Vertical", 2),
    Sketcher.Constraint("Horizontal", 3),
    Sketcher.Constraint("Vertical", 4),
    Sketcher.Constraint("Horizontal", 5),
    Sketcher.Constraint("Vertical", 6),
    Sketcher.Constraint("Horizontal", 7),
    Sketcher.Constraint("Horizontal", 1, 2, 4, 2),
    Sketcher.Constraint("Horizontal", 3, 2, 6, 2),
    Sketcher.Constraint("Equal", 3, 5),
    Sketcher.Constraint("DistanceX", 1, 2, 1, 1, Q("6 mm")),
    Sketcher.Constraint("DistanceY", 0, 1, 0, 2, Q("10.5 mm")),
    Sketcher.Constraint("DistanceX", 0, 2, -1, 1, Q("54 mm")),
    Sketcher.Constraint("DistanceX", -1, 1, 4, 2, Q("67 mm")),
    Sketcher.Constraint("DistanceY", -1, 1, 0, 2, Q("5.25 mm")),
])
sketch13.setExpression("Constraints[19]", "Params.sketch13_width")
sketch13.setExpression("Constraints[20]", "Params.sketch13_height")
pocket9 = body.newObject("PartDesign::Pocket", "Pocket008")
pocket9.Profile = sketch13
pocket9.setExpression("Length", "Params.pocket9_length")

sketch14 = body.newObject("Sketcher::SketchObject", "Sketch013")
sketch14.AttachmentSupport = (doc.getObject("YZ_Plane"), [""])
sketch14.MapMode = "FlatFace"
sketch14.AttachmentOffset = App.Placement(Vector(0, 0, 77), App.Rotation())
sketch14.addGeometry([
    Part.LineSegment(Vector(55, -55, 0), Vector(5, -55, 0)),
    Part.LineSegment(Vector(5, -55, 0), Vector(5, 55, 0)),
    Part.LineSegment(Vector(5, 55, 0), Vector(55, 55, 0)),
    Part.LineSegment(Vector(55, 55, 0), Vector(55, -55, 0)),
], False)
sketch14.addConstraint([
    Sketcher.Constraint("Coincident", 0, 2, 1, 1),
    Sketcher.Constraint("Coincident", 1, 2, 2, 1),
    Sketcher.Constraint("Coincident", 2, 2, 3, 1),
    Sketcher.Constraint("Coincident", 3, 2, 0, 1),
    Sketcher.Constraint("Horizontal", 0),
    Sketcher.Constraint("Vertical", 1),
    Sketcher.Constraint("Horizontal", 2),
    Sketcher.Constraint("Vertical", 3),
    Sketcher.Constraint("DistanceY", 1, 1, 1, 2, Q("110 mm")),
    Sketcher.Constraint("DistanceY", 0, 2, -1, 1, Q("55 mm")),
    Sketcher.Constraint("DistanceX", 0, 2, 0, 1, Q("50.06 mm")),
    Sketcher.Constraint("DistanceX", -1, 1, 0, 2, Q("4.995277 mm")),
])
sketch14.setExpression("Constraints[8]", "Params.sketch14_height")
sketch14.setExpression("Constraints[10]", "Params.sketch14_width")
pocket10 = body.newObject("PartDesign::Pocket", "Pocket009")
pocket10.Profile = sketch14
pocket10.setExpression("Length", "Params.pocket10_length")

sketch15 = body.newObject("Sketcher::SketchObject", "Sketch014")
sketch15.Placement = App.Placement(Vector(50.397154, 36.615676, 0), App.Rotation(Vector(0, 0, -1), Vector(-0.587785252, 0.809016994, 0), Vector(0.809016994, 0.587785252, 0), "ZXY"))
sketch15.addGeometry([
    Part.Circle(Vector(-61, 12.8, 0), Vector(0, 0, 1), 2),
    Part.Circle(Vector(-61, -30.3, 0), Vector(0, 0, 1), 2),
    Part.Circle(Vector(61, -30.3, 0), Vector(0, 0, 1), 2),
    Part.Circle(Vector(61, 12.8, 0), Vector(0, 0, 1), 2),
], False)
sketch15.addConstraint([
    Sketcher.Constraint("Equal", 0, 1),
    Sketcher.Constraint("Equal", 1, 2),
    Sketcher.Constraint("Equal", 2, 3),
    Sketcher.Constraint("Symmetric", 1, 3, 2, 3, -2),
    Sketcher.Constraint("Symmetric", 0, 3, 3, 3, -2),
    Sketcher.Constraint("Vertical", 0, 3, 1, 3),
    Sketcher.Constraint("Diameter", 0, Q("4 mm")),
    Sketcher.Constraint("DistanceX", 0, 3, -1, 1, Q("61 mm")),
    Sketcher.Constraint("DistanceY", -1, 1, 0, 3, Q("12.7926 mm")),
    Sketcher.Constraint("DistanceY", 1, 3, -1, 1, Q("30.259464 mm")),
])
sketch15.setExpression("Constraints[6]", "Params.sketch15_diameter")
pocket11 = body.newObject("PartDesign::Pocket", "Pocket010")
pocket11.Profile = sketch15
pocket11.setExpression("Length", "Params.pocket11_length")

sketch16 = body.newObject("Sketcher::SketchObject", "Sketch015")
sketch16.AttachmentSupport = (doc.getObject("XZ_Plane"), [""])
sketch16.MapMode = "FlatFace"
sketch16.AttachmentOffset = App.Placement(Vector(0, 0, -5), App.Rotation())
sketch16.addGeometry([
    Part.LineSegment(Vector(-7, -38, 0), Vector(24, -38, 0)),
    Part.LineSegment(Vector(24, -38, 0), Vector(24, -53, 0)),
    Part.LineSegment(Vector(24, -53, 0), Vector(-7, -53, 0)),
    Part.LineSegment(Vector(-7, -53, 0), Vector(-7, -38, 0)),
    Part.LineSegment(Vector(24, 53, 0), Vector(24, 38, 0)),
    Part.LineSegment(Vector(24, 38, 0), Vector(-7, 38, 0)),
    Part.LineSegment(Vector(-7, 38, 0), Vector(-7, 53, 0)),
    Part.LineSegment(Vector(-7, 53, 0), Vector(24, 53, 0)),
], False)
sketch16.addConstraint([
    Sketcher.Constraint("Coincident", 0, 2, 1, 1),
    Sketcher.Constraint("Coincident", 1, 2, 2, 1),
    Sketcher.Constraint("Coincident", 2, 2, 3, 1),
    Sketcher.Constraint("Coincident", 3, 2, 0, 1),
    Sketcher.Constraint("Coincident", 4, 2, 5, 1),
    Sketcher.Constraint("Coincident", 5, 2, 6, 1),
    Sketcher.Constraint("Coincident", 6, 2, 7, 1),
    Sketcher.Constraint("Coincident", 7, 2, 4, 1),
    Sketcher.Constraint("Horizontal", 0),
    Sketcher.Constraint("Vertical", 1),
    Sketcher.Constraint("Horizontal", 2),
    Sketcher.Constraint("Vertical", 3),
    Sketcher.Constraint("Vertical", 4),
    Sketcher.Constraint("Horizontal", 5),
    Sketcher.Constraint("Vertical", 6),
    Sketcher.Constraint("Horizontal", 7),
    Sketcher.Constraint("Symmetric", 0, 2, 4, 2, -1),
    Sketcher.Constraint("Symmetric", 2, 2, 6, 2, -1),
    Sketcher.Constraint("DistanceX", 0, 1, 0, 2, Q("31.5 mm")),
    Sketcher.Constraint("DistanceY", 1, 2, 1, 1, Q("14.5 mm")),
    Sketcher.Constraint("DistanceY", 1, 2, -1, 1, Q("53 mm")),
    Sketcher.Constraint("DistanceX", 2, 2, -1, 1, Q("7 mm")),
])
sketch16.setExpression("Constraints[18]", "Params.sketch16_width")
sketch16.setExpression("Constraints[19]", "Params.sketch16_height")
pocket12 = body.newObject("PartDesign::Pocket", "Pocket011")
pocket12.Profile = sketch16
pocket12.setExpression("Length", "Params.pocket12_length")
pocket12.Reversed = True

sketch17 = body.newObject("Sketcher::SketchObject", "Sketch016")
sketch17.AttachmentSupport = (doc.getObject("XY_Plane"), [""])
sketch17.MapMode = "FlatFace"
sketch17.AttachmentOffset = App.Placement(Vector(0, 0, 42.5), App.Rotation())
sketch17.addGeometry([
    Part.LineSegment(Vector(-70, 10, 0), Vector(-70, 0, 0)),
    Part.LineSegment(Vector(-70, 0, 0), Vector(-60, 0, 0)),
    Part.ArcOfCircle(Part.Circle(Vector(-49, 21, 0), Vector(0, 0, 1), 23), math.radians(-153), math.radians(-117)),
], False)
sketch17.addConstraint([
    Sketcher.Constraint("Coincident", 0, 2, 1, 1),
    Sketcher.Constraint("Coincident", 1, 2, 2, 2),
    Sketcher.Constraint("Coincident", 2, 1, 0, 1),
    Sketcher.Constraint("Vertical", 0),
    Sketcher.Constraint("Horizontal", 1),
    Sketcher.Constraint("PointOnObject", 0, 2, -1),
    Sketcher.Constraint("Equal", 1, 0),
    Sketcher.Constraint("Radius", 2, Q("23.5 mm")),
    Sketcher.Constraint("DistanceX", 2, 3, -1, 1, Q("49 mm")),
    Sketcher.Constraint("DistanceY", -1, 1, 2, 3, Q("21 mm")),
])
sketch17.setExpression("Constraints[7]", "Params.sketch17_radius")
pocket13 = body.newObject("PartDesign::Pocket", "Pocket012")
pocket13.Profile = sketch17
pocket13.setExpression("Length", "Params.pocket13_length")

sketch18 = body.newObject("Sketcher::SketchObject", "Sketch017")
sketch18.AttachmentSupport = (doc.getObject("XZ_Plane"), [""])
sketch18.MapMode = "FlatFace"
sketch18.addGeometry([
    Part.Circle(Vector(-57, 11.6, 0), Vector(0, 0, 1), 1.5),
    Part.Circle(Vector(-57, -11.6, 0), Vector(0, 0, 1), 1.5),
    Part.Circle(Vector(-20, -55, 0), Vector(0, 0, 1), 1.5),
    Part.Circle(Vector(-20, 55, 0), Vector(0, 0, 1), 1.5),
], False)
sketch18.addConstraint([
    Sketcher.Constraint("Equal", 0, 1),
    Sketcher.Constraint("Equal", 1, 2),
    Sketcher.Constraint("Equal", 2, 3),
    Sketcher.Constraint("Symmetric", 0, 3, 1, 3, -1),
    Sketcher.Constraint("Symmetric", 2, 3, 3, 3, -1),
    Sketcher.Constraint("Diameter", 0, Q("3 mm")),
    Sketcher.Constraint("DistanceX", 2, 3, -1, 1, Q("20 mm")),
    Sketcher.Constraint("DistanceY", 2, 3, -1, 1, Q("55 mm")),
    Sketcher.Constraint("DistanceY", 1, 3, 0, 3, Q("23.1 mm")),
    Sketcher.Constraint("DistanceX", 0, 3, -1, 1, Q("57.011914 mm")),
])
sketch18.setExpression("Constraints[5]", "Params.sketch18_diameter")
pocket14 = body.newObject("PartDesign::Pocket", "Pocket013")
pocket14.Profile = sketch18
pocket14.setExpression("Length", "Params.pocket14_length")

doc.recompute()
